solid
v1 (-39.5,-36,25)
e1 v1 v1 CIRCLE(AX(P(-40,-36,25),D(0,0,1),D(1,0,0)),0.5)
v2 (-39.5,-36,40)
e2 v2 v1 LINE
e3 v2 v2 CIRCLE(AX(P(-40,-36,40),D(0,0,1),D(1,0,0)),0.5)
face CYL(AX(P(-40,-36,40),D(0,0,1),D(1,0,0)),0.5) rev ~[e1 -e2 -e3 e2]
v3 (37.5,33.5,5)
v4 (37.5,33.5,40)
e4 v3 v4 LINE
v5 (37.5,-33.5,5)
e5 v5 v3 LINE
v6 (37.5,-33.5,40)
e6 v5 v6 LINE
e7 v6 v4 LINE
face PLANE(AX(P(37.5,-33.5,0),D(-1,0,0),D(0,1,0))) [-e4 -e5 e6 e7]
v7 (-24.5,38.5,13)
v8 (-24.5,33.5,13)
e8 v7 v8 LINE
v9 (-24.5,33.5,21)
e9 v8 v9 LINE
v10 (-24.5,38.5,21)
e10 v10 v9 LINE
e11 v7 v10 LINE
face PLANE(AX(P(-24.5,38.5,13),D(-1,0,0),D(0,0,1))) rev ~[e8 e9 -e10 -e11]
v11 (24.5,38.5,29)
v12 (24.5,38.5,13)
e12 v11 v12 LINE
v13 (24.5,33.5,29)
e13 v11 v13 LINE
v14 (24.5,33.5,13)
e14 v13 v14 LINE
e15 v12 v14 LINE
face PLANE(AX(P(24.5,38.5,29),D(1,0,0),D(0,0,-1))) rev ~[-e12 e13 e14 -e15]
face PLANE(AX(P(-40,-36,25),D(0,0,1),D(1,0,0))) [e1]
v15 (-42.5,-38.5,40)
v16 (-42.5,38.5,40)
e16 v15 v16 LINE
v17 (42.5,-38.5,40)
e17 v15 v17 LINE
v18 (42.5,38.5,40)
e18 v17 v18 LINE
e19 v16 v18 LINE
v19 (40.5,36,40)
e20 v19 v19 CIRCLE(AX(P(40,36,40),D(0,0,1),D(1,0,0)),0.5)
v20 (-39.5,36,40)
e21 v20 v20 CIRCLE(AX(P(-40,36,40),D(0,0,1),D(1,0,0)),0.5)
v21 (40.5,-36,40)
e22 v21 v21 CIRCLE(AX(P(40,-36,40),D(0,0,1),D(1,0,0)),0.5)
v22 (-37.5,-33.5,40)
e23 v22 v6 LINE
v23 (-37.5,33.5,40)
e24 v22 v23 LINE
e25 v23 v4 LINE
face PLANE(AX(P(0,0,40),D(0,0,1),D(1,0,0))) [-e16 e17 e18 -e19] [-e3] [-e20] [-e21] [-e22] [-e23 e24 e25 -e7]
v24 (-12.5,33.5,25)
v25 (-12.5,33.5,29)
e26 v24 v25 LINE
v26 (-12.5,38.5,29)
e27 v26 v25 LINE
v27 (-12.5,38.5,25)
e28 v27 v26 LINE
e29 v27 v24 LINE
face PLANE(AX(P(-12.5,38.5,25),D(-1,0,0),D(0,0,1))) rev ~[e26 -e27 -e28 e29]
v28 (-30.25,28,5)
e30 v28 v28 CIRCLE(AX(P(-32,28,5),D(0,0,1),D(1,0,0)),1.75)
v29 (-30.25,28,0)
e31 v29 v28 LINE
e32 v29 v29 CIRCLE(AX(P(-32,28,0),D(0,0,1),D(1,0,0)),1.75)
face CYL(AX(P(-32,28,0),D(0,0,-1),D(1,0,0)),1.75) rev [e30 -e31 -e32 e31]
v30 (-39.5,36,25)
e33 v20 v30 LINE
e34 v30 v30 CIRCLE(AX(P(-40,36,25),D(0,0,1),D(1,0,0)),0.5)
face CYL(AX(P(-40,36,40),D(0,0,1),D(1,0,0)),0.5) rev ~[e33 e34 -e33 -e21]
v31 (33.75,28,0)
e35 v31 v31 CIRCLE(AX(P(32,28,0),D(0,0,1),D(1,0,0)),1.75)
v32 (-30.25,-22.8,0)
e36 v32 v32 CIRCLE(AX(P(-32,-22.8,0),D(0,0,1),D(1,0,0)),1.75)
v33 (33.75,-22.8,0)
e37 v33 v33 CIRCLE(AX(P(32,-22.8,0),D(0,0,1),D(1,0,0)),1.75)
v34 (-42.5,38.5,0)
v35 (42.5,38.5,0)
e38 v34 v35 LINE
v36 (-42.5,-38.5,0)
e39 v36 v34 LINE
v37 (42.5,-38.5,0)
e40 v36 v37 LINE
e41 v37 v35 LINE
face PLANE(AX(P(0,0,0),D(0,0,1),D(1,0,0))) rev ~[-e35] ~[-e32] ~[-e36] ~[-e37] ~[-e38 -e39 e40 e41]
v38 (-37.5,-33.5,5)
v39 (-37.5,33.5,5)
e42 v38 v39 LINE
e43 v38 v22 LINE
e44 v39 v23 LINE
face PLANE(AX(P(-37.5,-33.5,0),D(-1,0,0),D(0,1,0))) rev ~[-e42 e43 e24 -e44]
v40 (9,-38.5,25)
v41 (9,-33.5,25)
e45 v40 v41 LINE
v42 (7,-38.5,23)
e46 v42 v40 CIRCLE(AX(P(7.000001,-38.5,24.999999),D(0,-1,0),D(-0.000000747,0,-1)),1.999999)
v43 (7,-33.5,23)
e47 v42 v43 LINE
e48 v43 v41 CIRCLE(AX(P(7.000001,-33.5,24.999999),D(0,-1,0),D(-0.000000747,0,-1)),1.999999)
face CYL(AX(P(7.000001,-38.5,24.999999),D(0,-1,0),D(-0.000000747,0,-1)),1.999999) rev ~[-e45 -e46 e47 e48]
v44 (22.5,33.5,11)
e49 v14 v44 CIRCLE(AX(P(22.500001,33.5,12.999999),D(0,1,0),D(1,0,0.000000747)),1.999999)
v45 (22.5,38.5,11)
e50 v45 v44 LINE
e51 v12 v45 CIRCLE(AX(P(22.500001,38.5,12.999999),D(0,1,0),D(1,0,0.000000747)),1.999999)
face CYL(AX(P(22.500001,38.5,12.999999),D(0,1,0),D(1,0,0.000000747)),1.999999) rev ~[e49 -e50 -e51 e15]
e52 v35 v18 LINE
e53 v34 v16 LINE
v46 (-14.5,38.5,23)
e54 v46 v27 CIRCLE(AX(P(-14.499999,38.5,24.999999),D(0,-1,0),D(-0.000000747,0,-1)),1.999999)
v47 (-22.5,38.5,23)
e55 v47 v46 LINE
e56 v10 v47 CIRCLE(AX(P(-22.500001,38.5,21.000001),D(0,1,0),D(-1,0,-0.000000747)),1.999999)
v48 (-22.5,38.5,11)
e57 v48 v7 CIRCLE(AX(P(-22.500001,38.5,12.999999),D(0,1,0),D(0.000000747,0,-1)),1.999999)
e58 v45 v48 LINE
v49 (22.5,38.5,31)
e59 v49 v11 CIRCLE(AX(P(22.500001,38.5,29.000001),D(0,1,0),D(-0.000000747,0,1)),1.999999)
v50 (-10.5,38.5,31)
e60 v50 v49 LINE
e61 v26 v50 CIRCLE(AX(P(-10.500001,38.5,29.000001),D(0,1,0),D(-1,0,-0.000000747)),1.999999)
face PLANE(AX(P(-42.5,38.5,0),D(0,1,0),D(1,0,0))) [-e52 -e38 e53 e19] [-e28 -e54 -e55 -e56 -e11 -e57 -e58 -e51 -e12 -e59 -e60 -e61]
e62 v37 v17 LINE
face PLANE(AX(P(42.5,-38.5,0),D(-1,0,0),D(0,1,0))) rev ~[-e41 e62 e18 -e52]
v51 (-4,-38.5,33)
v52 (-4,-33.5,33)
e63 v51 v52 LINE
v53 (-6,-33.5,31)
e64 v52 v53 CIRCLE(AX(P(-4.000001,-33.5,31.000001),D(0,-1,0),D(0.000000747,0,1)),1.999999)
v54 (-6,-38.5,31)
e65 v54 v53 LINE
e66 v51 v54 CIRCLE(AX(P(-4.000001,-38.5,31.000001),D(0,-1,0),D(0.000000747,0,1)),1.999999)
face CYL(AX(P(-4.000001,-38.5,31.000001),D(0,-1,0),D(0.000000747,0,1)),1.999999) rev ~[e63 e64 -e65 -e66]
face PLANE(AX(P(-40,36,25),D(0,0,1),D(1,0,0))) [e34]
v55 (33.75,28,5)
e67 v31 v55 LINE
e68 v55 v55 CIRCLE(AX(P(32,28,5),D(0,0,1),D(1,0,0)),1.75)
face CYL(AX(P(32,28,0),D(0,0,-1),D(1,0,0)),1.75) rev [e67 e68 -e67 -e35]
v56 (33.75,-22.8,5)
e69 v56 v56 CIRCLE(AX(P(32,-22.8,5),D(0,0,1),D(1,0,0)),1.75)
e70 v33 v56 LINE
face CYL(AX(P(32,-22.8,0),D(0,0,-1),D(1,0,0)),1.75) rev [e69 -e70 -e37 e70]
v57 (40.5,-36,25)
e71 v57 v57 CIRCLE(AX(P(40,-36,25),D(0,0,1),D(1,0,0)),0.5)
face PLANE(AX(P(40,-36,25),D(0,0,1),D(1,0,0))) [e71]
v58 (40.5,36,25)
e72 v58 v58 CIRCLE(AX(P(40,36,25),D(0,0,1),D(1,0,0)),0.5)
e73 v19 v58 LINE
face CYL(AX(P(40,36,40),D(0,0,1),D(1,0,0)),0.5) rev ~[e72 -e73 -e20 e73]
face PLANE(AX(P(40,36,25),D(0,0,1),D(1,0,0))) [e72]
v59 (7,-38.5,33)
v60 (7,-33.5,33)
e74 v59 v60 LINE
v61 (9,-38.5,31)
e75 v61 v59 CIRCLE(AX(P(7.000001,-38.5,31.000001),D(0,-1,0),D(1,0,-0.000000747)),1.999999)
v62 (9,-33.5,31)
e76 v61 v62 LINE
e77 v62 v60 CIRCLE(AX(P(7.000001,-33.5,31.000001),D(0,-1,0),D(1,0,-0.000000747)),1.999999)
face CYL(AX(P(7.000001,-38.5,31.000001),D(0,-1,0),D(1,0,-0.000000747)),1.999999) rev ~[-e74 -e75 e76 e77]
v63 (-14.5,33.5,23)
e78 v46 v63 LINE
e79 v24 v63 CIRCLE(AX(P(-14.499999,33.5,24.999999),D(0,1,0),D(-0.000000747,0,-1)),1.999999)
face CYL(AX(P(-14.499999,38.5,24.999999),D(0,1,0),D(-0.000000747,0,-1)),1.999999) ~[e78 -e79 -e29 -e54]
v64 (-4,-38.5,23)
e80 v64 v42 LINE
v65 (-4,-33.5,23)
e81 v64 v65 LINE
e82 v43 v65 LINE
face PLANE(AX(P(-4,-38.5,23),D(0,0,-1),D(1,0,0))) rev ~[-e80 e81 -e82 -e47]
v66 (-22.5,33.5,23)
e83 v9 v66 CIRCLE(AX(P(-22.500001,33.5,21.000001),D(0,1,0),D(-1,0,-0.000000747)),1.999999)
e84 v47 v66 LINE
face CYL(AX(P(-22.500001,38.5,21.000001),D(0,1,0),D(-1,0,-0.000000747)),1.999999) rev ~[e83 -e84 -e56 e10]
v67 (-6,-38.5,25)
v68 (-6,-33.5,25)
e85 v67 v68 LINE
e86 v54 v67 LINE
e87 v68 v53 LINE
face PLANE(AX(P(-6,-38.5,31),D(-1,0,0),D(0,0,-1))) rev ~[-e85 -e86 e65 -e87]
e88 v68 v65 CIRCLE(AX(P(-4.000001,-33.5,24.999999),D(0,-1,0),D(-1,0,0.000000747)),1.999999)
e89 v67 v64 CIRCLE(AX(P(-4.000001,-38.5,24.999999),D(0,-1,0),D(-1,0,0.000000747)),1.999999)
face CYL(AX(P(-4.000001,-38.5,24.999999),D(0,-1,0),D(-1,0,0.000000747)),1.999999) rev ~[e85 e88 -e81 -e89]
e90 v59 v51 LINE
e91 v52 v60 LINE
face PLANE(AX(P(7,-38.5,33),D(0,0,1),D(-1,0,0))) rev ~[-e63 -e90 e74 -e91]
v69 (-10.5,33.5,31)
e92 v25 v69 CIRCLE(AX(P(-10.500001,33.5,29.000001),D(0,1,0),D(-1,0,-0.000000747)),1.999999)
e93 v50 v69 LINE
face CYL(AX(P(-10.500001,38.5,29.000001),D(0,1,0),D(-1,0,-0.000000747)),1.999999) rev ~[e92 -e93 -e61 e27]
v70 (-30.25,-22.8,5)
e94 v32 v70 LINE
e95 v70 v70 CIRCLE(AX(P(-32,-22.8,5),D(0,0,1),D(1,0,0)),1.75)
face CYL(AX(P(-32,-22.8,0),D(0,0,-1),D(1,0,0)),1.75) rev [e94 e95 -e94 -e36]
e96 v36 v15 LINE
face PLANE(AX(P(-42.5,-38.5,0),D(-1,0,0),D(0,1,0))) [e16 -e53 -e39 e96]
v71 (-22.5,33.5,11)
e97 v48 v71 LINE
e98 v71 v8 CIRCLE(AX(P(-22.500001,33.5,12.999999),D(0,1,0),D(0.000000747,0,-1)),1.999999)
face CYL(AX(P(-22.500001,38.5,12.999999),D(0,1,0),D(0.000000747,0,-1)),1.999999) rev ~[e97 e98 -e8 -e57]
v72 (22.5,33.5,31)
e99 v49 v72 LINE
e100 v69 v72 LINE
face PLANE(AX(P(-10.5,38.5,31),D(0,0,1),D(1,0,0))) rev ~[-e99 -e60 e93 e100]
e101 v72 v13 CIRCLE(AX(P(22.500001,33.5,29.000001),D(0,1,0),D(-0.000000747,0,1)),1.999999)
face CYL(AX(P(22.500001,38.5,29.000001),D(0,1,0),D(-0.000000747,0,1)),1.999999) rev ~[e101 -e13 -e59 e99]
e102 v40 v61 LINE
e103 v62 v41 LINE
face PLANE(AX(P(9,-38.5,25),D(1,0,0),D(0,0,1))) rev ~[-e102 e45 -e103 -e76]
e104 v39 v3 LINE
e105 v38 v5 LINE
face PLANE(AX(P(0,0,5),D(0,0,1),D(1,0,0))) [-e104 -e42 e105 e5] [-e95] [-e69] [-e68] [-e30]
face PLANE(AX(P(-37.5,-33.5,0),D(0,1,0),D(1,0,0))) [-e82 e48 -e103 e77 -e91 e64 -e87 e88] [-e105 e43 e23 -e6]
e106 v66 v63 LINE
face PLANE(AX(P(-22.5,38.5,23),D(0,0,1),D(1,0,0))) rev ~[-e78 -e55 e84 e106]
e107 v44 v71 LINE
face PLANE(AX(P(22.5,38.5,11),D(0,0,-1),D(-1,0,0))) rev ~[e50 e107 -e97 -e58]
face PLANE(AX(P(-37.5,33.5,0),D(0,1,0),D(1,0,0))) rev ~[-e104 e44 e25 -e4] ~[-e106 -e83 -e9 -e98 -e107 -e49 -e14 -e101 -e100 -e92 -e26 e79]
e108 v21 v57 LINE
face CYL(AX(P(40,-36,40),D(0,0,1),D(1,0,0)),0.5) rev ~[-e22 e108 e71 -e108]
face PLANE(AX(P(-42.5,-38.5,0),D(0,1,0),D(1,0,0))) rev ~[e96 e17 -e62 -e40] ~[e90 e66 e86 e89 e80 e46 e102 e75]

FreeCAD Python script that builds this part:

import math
import FreeCAD as App
import Part
import Sketcher
from FreeCAD import Vector

doc = App.newDocument("Part")
body = doc.addObject("PartDesign::Body", "Body")

sketch1 = body.newObject("Sketcher::SketchObject", "Sketch")
sketch1.AttachmentSupport = (doc.getObject("XY_Plane"), [""])
sketch1.MapMode = "FlatFace"
sketch1.addGeometry(Part.LineSegment(Vector(-37.5, 33.5, 0), Vector(-37.5, -33.5, 0)), False)
sketch1.addGeometry(Part.LineSegment(Vector(-37.5, -33.5, 0), Vector(37.5, -33.5, 0)), False)
sketch1.addGeometry(Part.LineSegment(Vector(37.5, -33.5, 0), Vector(37.5, 33.5, 0)), False)
sketch1.addGeometry(Part.LineSegment(Vector(37.5, 33.5, 0), Vector(-37.5, 33.5, 0)), False)
sketch1.addGeometry(Part.Circle(Vector(-32, -22.8, 0), Vector(0, 0, 1), 1.8), False)
sketch1.addGeometry(Part.Circle(Vector(32, -22.8, 0), Vector(0, 0, 1), 1.8), False)
sketch1.addGeometry(Part.Circle(Vector(-32, 28, 0), Vector(0, 0, 1), 1.8), False)
sketch1.addGeometry(Part.Circle(Vector(32, 28, 0), Vector(0, 0, 1), 1.8), False)
sketch1.addConstraint(Sketcher.Constraint("Coincident", 0, 2, 1, 1))
sketch1.addConstraint(Sketcher.Constraint("Coincident", 1, 2, 2, 1))
sketch1.addConstraint(Sketcher.Constraint("Coincident", 2, 2, 3, 1))
sketch1.addConstraint(Sketcher.Constraint("Coincident", 3, 2, 0, 1))
sketch1.addConstraint(Sketcher.Constraint("Vertical", 0))
sketch1.addConstraint(Sketcher.Constraint("Horizontal", 1))
sketch1.addConstraint(Sketcher.Constraint("Vertical", 2))
sketch1.addConstraint(Sketcher.Constraint("Horizontal", 3))
sketch1.addConstraint(Sketcher.Constraint("Equal", 4, 5))
sketch1.addConstraint(Sketcher.Constraint("Equal", 5, 6))
sketch1.addConstraint(Sketcher.Constraint("Equal", 6, 7))
sketch1.addConstraint(Sketcher.Constraint("Symmetric", 0, 2, 2, 2, -1, 1))
sketch1.addConstraint(Sketcher.Constraint("Symmetric", 4, 3, 5, 3, -2))
sketch1.addConstraint(Sketcher.Constraint("Symmetric", 6, 3, 7, 3, -2))
sketch1.addConstraint(Sketcher.Constraint("Vertical", 4, 3, 6, 3))
sketch1.addConstraint(Sketcher.Constraint("Diameter", 4, 3.5))
sketch1.addConstraint(Sketcher.Constraint("DistanceX", 1, 1, 1, 2, 75.0))
sketch1.addConstraint(Sketcher.Constraint("DistanceY", 0, 2, 0, 1, 67.0))
sketch1.addConstraint(Sketcher.Constraint("DistanceX", 4, 3, -1, 1, 32.0))
sketch1.addConstraint(Sketcher.Constraint("DistanceY", -1, 1, 6, 3, 28.0))
sketch1.addConstraint(Sketcher.Constraint("DistanceY", 4, 3, -1, 1, 22.8))
pad1 = body.newObject("PartDesign::Pad", "Pad")
pad1.Profile = sketch1
pad1.Length = 5

sketch2 = body.newObject("Sketcher::SketchObject", "Sketch001")
sketch2.AttachmentSupport = (doc.getObject("XY_Plane"), [""])
sketch2.MapMode = "FlatFace"
sketch2.addGeometry(Part.LineSegment(Vector(-42, 38, 0), Vector(-42, -38, 0)), False)
sketch2.addGeometry(Part.LineSegment(Vector(-42, -38, 0), Vector(42, -38, 0)), False)
sketch2.addGeometry(Part.LineSegment(Vector(42, -38, 0), Vector(42, 38, 0)), False)
sketch2.addGeometry(Part.LineSegment(Vector(42, 38, 0), Vector(-42, 38, 0)), False)
sketch2.addGeometry(Part.LineSegment(Vector(38, -34, 0), Vector(-38, -34, 0)), False)
sketch2.addGeometry(Part.LineSegment(Vector(-38, -34, 0), Vector(-38, 34, 0)), False)
sketch2.addGeometry(Part.LineSegment(Vector(-38, 34, 0), Vector(38, 34, 0)), False)
sketch2.addGeometry(Part.LineSegment(Vector(38, 34, 0), Vector(38, -34, 0)), False)
sketch2.addConstraint(Sketcher.Constraint("Coincident", 0, 2, 1, 1))
sketch2.addConstraint(Sketcher.Constraint("Coincident", 1, 2, 2, 1))
sketch2.addConstraint(Sketcher.Constraint("Coincident", 2, 2, 3, 1))
sketch2.addConstraint(Sketcher.Constraint("Coincident", 3, 2, 0, 1))
sketch2.addConstraint(Sketcher.Constraint("Coincident", 4, 2, 5, 1))
sketch2.addConstraint(Sketcher.Constraint("Coincident", 5, 2, 6, 1))
sketch2.addConstraint(Sketcher.Constraint("Coincident", 6, 2, 7, 1))
sketch2.addConstraint(Sketcher.Constraint("Coincident", 7, 2, 4, 1))
sketch2.addConstraint(Sketcher.Constraint("Vertical", 0))
sketch2.addConstraint(Sketcher.Constraint("Horizontal", 1))
sketch2.addConstraint(Sketcher.Constraint("Vertical", 2))
sketch2.addConstraint(Sketcher.Constraint("Horizontal", 3))
sketch2.addConstraint(Sketcher.Constraint("Horizontal", 4))
sketch2.addConstraint(Sketcher.Constraint("Vertical", 5))
sketch2.addConstraint(Sketcher.Constraint("Horizontal", 6))
sketch2.addConstraint(Sketcher.Constraint("Vertical", 7))
sketch2.addConstraint(Sketcher.Constraint("Symmetric", 0, 2, 2, 2, -1, 1))
sketch2.addConstraint(Sketcher.Constraint("Symmetric", 4, 2, 6, 2, -1, 1))
sketch2.addConstraint(Sketcher.Constraint("DistanceX", 1, 1, 1, 2, 85.0))
sketch2.addConstraint(Sketcher.Constraint("DistanceX", 4, 2, 4, 1, 75.0))
sketch2.addConstraint(Sketcher.Constraint("DistanceY", 0, 2, 0, 1, 77.0))
sketch2.addConstraint(Sketcher.Constraint("DistanceY", 5, 1, 5, 2, 67.0))
pad2 = body.newObject("PartDesign::Pad", "Pad001")
pad2.Profile = sketch2
pad2.Length = 40

sketch3 = body.newObject("Sketcher::SketchObject", "Sketch002")
sketch3.AttachmentSupport = (doc.getObject("XY_Plane"), [""])
sketch3.MapMode = "FlatFace"
sketch3.AttachmentOffset = App.Placement(Vector(0, 0, 40), App.Rotation())
sketch3.addGeometry(Part.Circle(Vector(-40, -36, 0), Vector(0, 0, 1), 0.5), False)
sketch3.addGeometry(Part.Circle(Vector(-40, 36, 0), Vector(0, 0, 1), 0.5), False)
sketch3.addGeometry(Part.Circle(Vector(40, -36, 0), Vector(0, 0, 1), 0.5), False)
sketch3.addGeometry(Part.Circle(Vector(40, 36, 0), Vector(0, 0, 1), 0.5), False)
sketch3.addConstraint(Sketcher.Constraint("Equal", 0, 1))
sketch3.addConstraint(Sketcher.Constraint("Equal", 1, 2))
sketch3.addConstraint(Sketcher.Constraint("Equal", 2, 3))
sketch3.addConstraint(Sketcher.Constraint("Symmetric", 1, 3, 2, 3, -1, 1))
sketch3.addConstraint(Sketcher.Constraint("Symmetric", 0, 3, 3, 3, -1, 1))
sketch3.addConstraint(Sketcher.Constraint("Symmetric", 0, 3, 2, 3, -2))
sketch3.addConstraint(Sketcher.Constraint("Diameter", 0, 1.0))
sketch3.addConstraint(Sketcher.Constraint("DistanceX", 0, 3, -1, 1, 40.0))
sketch3.addConstraint(Sketcher.Constraint("DistanceY", 0, 3, -1, 1, 36.0))
pocket1 = body.newObject("PartDesign::Pocket", "Pocket")
pocket1.Profile = sketch3
pocket1.Length = 15

sketch4 = body.newObject("Sketcher::SketchObject", "Sketch003")
sketch4.AttachmentSupport = (doc.getObject("XZ_Plane"), [""])
sketch4.MapMode = "FlatFace"
sketch4.AttachmentOffset = App.Placement(Vector(0, 0, 38.5), App.Rotation())
sketch4.addGeometry(Part.LineSegment(Vector(7, 33, 0), Vector(-4, 33, 0)), False)
sketch4.addGeometry(Part.ArcOfCircle(Part.Circle(Vector(-4, 31, 0), Vector(0, 0, 1), 2), math.radians(90), math.radians(180)), False)
sketch4.addGeometry(Part.LineSegment(Vector(-6, 31, 0), Vector(-6, 25, 0)), False)
sketch4.addGeometry(Part.ArcOfCircle(Part.Circle(Vector(-4, 25, 0), Vector(0, 0, 1), 2), math.radians(180), math.radians(270)), False)
sketch4.addGeometry(Part.LineSegment(Vector(-4, 23, 0), Vector(7, 23, 0)), False)
sketch4.addGeometry(Part.ArcOfCircle(Part.Circle(Vector(7, 25, 0), Vector(0, 0, 1), 2), math.radians(-90), math.radians(0)), False)
sketch4.addGeometry(Part.LineSegment(Vector(9, 25, 0), Vector(9, 31, 0)), False)
sketch4.addGeometry(Part.ArcOfCircle(Part.Circle(Vector(7, 31, 0), Vector(0, 0, 1), 2), math.radians(0), math.radians(90)), False)
sketch4.addConstraint(Sketcher.Constraint("Tangent", 0, 2, 1, 1))
sketch4.addConstraint(Sketcher.Constraint("Tangent", 1, 2, 2, 1))
sketch4.addConstraint(Sketcher.Constraint("Tangent", 2, 2, 3, 1))
sketch4.addConstraint(Sketcher.Constraint("Tangent", 3, 2, 4, 1))
sketch4.addConstraint(Sketcher.Constraint("Tangent", 4, 2, 5, 1))
sketch4.addConstraint(Sketcher.Constraint("Tangent", 5, 2, 6, 1))
sketch4.addConstraint(Sketcher.Constraint("Tangent", 6, 2, 7, 1))
sketch4.addConstraint(Sketcher.Constraint("Tangent", 7, 2, 0, 1))
sketch4.addConstraint(Sketcher.Constraint("Horizontal", 0))
sketch4.addConstraint(Sketcher.Constraint("Vertical", 2))
sketch4.addConstraint(Sketcher.Constraint("Horizontal", 4))
sketch4.addConstraint(Sketcher.Constraint("Vertical", 6))
sketch4.addConstraint(Sketcher.Constraint("Equal", 1, 3))
sketch4.addConstraint(Sketcher.Constraint("Equal", 3, 5))
sketch4.addConstraint(Sketcher.Constraint("Equal", 5, 7))
sketch4.addConstraint(Sketcher.Constraint("Radius", 1, 1.999999))
sketch4.addConstraint(Sketcher.Constraint("DistanceX", 0, 2, 0, 1, 11.0))
sketch4.addConstraint(Sketcher.Constraint("DistanceY", 2, 2, 2, 1, 6.0))
sketch4.addConstraint(Sketcher.Constraint("DistanceX", 1, 3, -1, 1, 4.000001))
sketch4.addConstraint(Sketcher.Constraint("DistanceY", -1, 1, 1, 3, 31.000001))
pocket2 = body.newObject("PartDesign::Pocket", "Pocket001")
pocket2.Profile = sketch4
pocket2.Length = 25

sketch5 = body.newObject("Sketcher::SketchObject", "Sketch004")
sketch5.AttachmentSupport = (doc.getObject("XZ_Plane"), [""])
sketch5.MapMode = "FlatFace"
sketch5.AttachmentOffset = App.Placement(Vector(0, 0, -38.5), App.Rotation())
sketch5.addGeometry(Part.LineSegment(Vector(-10.5, 31, 0), Vector(22.5, 31, 0)), False)
sketch5.addGeometry(Part.ArcOfCircle(Part.Circle(Vector(22.5, 29, 0), Vector(0, 0, 1), 2), math.radians(0), math.radians(90)), False)
sketch5.addGeometry(Part.LineSegment(Vector(24.5, 29, 0), Vector(24.5, 13, 0)), False)
sketch5.addGeometry(Part.ArcOfCircle(Part.Circle(Vector(22.5, 13, 0), Vector(0, 0, 1), 2), math.radians(-90), math.radians(0)), False)
sketch5.addGeometry(Part.LineSegment(Vector(22.5, 11, 0), Vector(-22.5, 11, 0)), False)
sketch5.addGeometry(Part.ArcOfCircle(Part.Circle(Vector(-22.5, 13, 0), Vector(0, 0, 1), 2), math.radians(180), math.radians(270)), False)
sketch5.addGeometry(Part.LineSegment(Vector(-24.5, 13, 0), Vector(-24.5, 21, 0)), False)
sketch5.addGeometry(Part.ArcOfCircle(Part.Circle(Vector(-22.5, 21, 0), Vector(0, 0, 1), 2), math.radians(90), math.radians(180)), False)
sketch5.addGeometry(Part.LineSegment(Vector(-22.5, 23, 0), Vector(-14.5, 23, 0)), False)
sketch5.addGeometry(Part.ArcOfCircle(Part.Circle(Vector(-14.5, 25, 0), Vector(0, 0, 1), 2), math.radians(-90), math.radians(0)), False)
sketch5.addGeometry(Part.LineSegment(Vector(-12.5, 25, 0), Vector(-12.5, 29, 0)), False)
sketch5.addGeometry(Part.ArcOfCircle(Part.Circle(Vector(-10.5, 29, 0), Vector(0, 0, 1), 2), math.radians(90), math.radians(180)), False)
sketch5.addConstraint(Sketcher.Constraint("Tangent", 0, 2, 1, 2))
sketch5.addConstraint(Sketcher.Constraint("Tangent", 1, 1, 2, 1))
sketch5.addConstraint(Sketcher.Constraint("Tangent", 2, 2, 3, 2))
sketch5.addConstraint(Sketcher.Constraint("Tangent", 3, 1, 4, 1))
sketch5.addConstraint(Sketcher.Constraint("Tangent", 4, 2, 5, 2))
sketch5.addConstraint(Sketcher.Constraint("Tangent", 5, 1, 6, 1))
sketch5.addConstraint(Sketcher.Constraint("Tangent", 6, 2, 7, 2))
sketch5.addConstraint(Sketcher.Constraint("Tangent", 7, 1, 8, 1))
sketch5.addConstraint(Sketcher.Constraint("Tangent", 8, 2, 9, 1))
sketch5.addConstraint(Sketcher.Constraint("Tangent", 9, 2, 10, 1))
sketch5.addConstraint(Sketcher.Constraint("Tangent", 10, 2, 11, 2))
sketch5.addConstraint(Sketcher.Constraint("Tangent", 11, 1, 0, 1))
sketch5.addConstraint(Sketcher.Constraint("Horizontal", 0))
sketch5.addConstraint(Sketcher.Constraint("Vertical", 2))
sketch5.addConstraint(Sketcher.Constraint("Horizontal", 4))
sketch5.addConstraint(Sketcher.Constraint("Vertical", 6))
sketch5.addConstraint(Sketcher.Constraint("Horizontal", 8))
sketch5.addConstraint(Sketcher.Constraint("Vertical", 10))
sketch5.addConstraint(Sketcher.Constraint("Equal", 1, 3))
sketch5.addConstraint(Sketcher.Constraint("Equal", 3, 5))
sketch5.addConstraint(Sketcher.Constraint("Equal", 5, 7))
sketch5.addConstraint(Sketcher.Constraint("Equal", 7, 9))
sketch5.addConstraint(Sketcher.Constraint("Equal", 9, 11))
sketch5.addConstraint(Sketcher.Constraint("Equal", 8, 6))
sketch5.addConstraint(Sketcher.Constraint("Radius", 1, 1.999999))
sketch5.addConstraint(Sketcher.Constraint("DistanceX", 0, 1, 0, 2, 33.0))
sketch5.addConstraint(Sketcher.Constraint("DistanceX", 4, 2, 4, 1, 45.0))
sketch5.addConstraint(Sketcher.Constraint("DistanceY", 2, 2, 2, 1, 16.0))
sketch5.addConstraint(Sketcher.Constraint("DistanceY", -1, 1, 1, 3, 29.000001))
sketch5.addConstraint(Sketcher.Constraint("DistanceX", -1, 1, 1, 3, 22.500001))
pocket3 = body.newObject("PartDesign::Pocket", "Pocket002")
pocket3.Profile = sketch5
pocket3.Length = 25
pocket3.Reversed = True

doc.recompute()
